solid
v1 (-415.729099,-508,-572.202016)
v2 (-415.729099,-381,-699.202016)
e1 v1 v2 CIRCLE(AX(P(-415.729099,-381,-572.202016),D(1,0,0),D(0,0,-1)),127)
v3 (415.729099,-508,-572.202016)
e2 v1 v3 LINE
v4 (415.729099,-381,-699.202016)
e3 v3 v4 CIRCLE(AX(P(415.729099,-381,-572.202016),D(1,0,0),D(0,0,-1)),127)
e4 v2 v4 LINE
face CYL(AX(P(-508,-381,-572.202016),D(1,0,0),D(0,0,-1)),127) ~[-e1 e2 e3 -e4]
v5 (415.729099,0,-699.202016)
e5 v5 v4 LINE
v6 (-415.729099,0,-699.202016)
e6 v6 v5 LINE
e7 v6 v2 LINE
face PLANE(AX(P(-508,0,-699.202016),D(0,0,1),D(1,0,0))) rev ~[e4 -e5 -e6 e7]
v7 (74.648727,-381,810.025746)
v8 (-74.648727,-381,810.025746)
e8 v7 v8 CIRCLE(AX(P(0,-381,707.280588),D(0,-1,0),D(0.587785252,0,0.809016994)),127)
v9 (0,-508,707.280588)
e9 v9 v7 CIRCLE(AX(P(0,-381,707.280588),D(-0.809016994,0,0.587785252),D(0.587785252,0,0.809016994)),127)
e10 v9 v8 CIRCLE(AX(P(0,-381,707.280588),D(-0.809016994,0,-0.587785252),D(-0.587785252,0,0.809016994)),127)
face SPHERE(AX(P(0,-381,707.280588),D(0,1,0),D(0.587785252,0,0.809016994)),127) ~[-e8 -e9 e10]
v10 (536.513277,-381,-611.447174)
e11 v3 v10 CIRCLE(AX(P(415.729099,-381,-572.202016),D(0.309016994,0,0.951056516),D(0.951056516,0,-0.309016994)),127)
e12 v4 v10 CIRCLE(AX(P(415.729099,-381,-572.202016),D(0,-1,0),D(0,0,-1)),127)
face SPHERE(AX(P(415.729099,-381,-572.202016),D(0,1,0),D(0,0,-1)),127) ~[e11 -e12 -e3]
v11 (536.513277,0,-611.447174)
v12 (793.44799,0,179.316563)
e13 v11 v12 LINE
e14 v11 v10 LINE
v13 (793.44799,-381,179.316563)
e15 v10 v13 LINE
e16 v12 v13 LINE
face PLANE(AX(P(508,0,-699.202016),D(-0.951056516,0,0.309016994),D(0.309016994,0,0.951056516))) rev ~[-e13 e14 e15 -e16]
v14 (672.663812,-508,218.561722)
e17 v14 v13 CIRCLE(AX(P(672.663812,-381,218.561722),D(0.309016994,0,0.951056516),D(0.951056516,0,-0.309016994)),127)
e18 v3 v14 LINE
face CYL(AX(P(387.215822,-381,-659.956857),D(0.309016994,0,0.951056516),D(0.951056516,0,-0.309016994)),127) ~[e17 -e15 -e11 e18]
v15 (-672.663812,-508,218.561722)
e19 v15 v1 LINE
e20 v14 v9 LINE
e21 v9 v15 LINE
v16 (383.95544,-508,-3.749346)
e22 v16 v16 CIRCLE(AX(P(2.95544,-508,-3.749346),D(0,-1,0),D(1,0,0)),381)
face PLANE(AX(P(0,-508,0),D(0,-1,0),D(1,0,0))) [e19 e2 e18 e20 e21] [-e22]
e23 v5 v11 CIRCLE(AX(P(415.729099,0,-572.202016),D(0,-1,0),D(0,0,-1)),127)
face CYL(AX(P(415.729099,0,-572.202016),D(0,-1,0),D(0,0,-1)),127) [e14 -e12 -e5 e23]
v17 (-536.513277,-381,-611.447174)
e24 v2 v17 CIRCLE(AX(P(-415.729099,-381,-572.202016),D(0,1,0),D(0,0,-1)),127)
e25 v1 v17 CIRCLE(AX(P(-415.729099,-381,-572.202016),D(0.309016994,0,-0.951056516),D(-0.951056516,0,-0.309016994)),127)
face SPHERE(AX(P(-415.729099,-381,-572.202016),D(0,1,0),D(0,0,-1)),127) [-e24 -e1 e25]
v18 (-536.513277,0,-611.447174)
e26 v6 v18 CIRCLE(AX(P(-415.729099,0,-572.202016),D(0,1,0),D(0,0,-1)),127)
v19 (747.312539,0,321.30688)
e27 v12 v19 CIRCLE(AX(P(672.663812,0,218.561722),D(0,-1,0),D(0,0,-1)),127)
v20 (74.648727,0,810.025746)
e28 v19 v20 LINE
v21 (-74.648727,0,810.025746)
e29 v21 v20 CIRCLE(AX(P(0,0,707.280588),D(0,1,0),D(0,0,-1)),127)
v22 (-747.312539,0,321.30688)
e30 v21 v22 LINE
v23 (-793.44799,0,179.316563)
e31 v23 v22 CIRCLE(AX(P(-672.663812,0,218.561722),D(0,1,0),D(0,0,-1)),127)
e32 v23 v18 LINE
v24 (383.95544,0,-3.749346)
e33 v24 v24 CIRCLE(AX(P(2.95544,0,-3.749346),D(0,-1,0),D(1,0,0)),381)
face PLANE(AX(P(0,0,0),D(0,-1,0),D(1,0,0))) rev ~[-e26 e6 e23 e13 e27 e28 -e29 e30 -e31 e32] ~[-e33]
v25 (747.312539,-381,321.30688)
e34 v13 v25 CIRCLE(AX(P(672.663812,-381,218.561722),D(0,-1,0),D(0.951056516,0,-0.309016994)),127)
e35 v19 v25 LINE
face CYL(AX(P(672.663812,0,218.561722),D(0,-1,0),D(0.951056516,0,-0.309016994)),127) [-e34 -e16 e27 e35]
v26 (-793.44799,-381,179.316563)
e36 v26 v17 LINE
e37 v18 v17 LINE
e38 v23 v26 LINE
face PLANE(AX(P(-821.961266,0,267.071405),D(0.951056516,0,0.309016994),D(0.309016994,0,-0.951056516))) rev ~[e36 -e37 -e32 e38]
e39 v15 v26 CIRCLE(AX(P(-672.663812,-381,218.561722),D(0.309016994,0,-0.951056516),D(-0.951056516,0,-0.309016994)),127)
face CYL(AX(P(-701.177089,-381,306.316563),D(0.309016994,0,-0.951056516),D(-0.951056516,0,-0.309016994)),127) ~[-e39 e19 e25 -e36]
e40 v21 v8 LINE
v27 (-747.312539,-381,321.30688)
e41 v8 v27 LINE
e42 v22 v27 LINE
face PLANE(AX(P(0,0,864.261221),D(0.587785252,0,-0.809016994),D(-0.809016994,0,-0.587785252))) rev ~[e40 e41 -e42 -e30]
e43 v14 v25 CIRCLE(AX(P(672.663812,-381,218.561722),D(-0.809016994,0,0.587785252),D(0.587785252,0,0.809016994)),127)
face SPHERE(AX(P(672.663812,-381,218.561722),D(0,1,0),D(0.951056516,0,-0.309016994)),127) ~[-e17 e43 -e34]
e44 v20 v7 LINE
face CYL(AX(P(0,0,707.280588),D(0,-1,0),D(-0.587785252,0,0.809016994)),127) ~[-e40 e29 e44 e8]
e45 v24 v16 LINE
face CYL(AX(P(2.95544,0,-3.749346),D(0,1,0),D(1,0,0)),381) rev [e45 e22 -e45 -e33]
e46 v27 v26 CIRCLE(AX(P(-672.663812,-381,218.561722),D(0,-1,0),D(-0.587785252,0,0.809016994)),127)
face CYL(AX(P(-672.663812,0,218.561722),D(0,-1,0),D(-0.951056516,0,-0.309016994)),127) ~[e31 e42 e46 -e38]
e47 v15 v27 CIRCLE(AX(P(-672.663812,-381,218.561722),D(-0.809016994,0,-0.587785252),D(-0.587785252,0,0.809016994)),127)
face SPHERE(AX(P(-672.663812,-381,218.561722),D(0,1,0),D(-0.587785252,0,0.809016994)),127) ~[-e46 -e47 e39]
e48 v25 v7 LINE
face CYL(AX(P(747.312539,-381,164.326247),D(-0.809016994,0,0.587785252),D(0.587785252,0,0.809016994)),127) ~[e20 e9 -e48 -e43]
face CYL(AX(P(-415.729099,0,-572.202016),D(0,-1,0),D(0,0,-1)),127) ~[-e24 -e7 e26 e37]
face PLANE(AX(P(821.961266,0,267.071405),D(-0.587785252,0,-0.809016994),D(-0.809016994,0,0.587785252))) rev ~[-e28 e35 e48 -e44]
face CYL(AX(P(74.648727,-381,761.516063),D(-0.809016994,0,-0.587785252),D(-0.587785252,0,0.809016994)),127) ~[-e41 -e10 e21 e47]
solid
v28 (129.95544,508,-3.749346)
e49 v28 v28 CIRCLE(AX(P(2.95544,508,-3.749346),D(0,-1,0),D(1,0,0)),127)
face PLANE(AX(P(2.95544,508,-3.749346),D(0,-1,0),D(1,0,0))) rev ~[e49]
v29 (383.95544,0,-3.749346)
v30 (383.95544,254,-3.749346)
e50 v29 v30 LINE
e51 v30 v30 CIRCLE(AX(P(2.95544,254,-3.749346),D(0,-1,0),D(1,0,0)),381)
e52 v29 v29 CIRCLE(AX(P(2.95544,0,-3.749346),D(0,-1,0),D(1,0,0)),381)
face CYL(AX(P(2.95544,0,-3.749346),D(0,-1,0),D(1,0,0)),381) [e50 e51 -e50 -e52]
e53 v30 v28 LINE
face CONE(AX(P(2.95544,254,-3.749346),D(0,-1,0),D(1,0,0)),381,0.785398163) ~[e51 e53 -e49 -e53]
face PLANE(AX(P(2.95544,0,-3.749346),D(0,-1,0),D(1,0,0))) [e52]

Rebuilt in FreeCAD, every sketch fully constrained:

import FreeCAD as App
import Part
import Sketcher
from FreeCAD import Vector
Q = App.Units.Quantity


def edges_at(feature, points):
    """Names of the edges that pass closest to the given points."""
    edges = feature.Shape.Edges
    near = lambda p: min(range(len(edges)), key=lambda i: edges[i].distToShape(Part.Vertex(*p))[0])
    return sorted({f"Edge{near(p) + 1}" for p in points})


def add_polygon(sketch, points):
    """Adds a closed chain of lines whose ends are joined by coincident constraints."""
    first, n = sketch.GeometryCount, len(points)
    for a, b in zip(points, points[1:] + points[:1]):
        sketch.addGeometry(Part.LineSegment(App.Vector(*a, 0), App.Vector(*b, 0)), False)
    for i in range(n):
        sketch.addConstraint(Sketcher.Constraint("Coincident", first + i, 2, first + (i + 1) % n, 1))

doc = App.newDocument("Part")
params = doc.addObject("Spreadsheet::Sheet", "Params")
for row, (alias, value) in enumerate([
    ("sketch1_diameter", "30 in"),
    ("sketch1_width", "40 in"),
    ("sketch1_length", "40 in"),
    ("pad1_length", "20 in"),
    ("fillet_radius", "5 in"),
    ("sketch2_diameter", "30 in"),
    ("pad2_length", "20 in"),
    ("chamfer_size", "10 in"),
], start=1):
    params.set(f"A{row}", alias)
    params.set(f"B{row}", "=" + value)
    params.setAlias(f"B{row}", alias)

body = doc.addObject("PartDesign::Body", "Body")
body.AllowCompound = True

sketch1 = body.newObject("Sketcher::SketchObject", "Sketch")
sketch1.AttachmentSupport = (doc.getObject("XZ_Plane"), [""])
sketch1.MapMode = "FlatFace"
add_polygon(sketch1, [(-508, -699.202016), (508, -699.202016), (821.961266, 267.071405), (0, 864.261221), (-821.961266, 267.071405)])
sketch1.addGeometry(Part.Circle(Vector(2.95544, -3.749346, 0), Vector(0, 0, 1), 381), False)
sketch1.addConstraint([
    Sketcher.Constraint("Horizontal", 0),
    Sketcher.Constraint("Symmetric", 1, 2, 3, 2, -2),
    Sketcher.Constraint("PointOnObject", 2, 2, -2),
    Sketcher.Constraint("Equal", 1, 2),
    Sketcher.Constraint("Equal", 3, 4),
    Sketcher.Constraint("Diameter", 5, Q("30 in")),
    Sketcher.Constraint("DistanceX", 0, 1, 0, 2, Q("40 in")),
    Sketcher.Constraint("Distance", 1, Q("40 in")),
    Sketcher.Constraint("Angle", 1, Q("72 deg")),
    Sketcher.Constraint("DistanceX", -1, 1, 5, 3, Q("2.95544 mm")),
    Sketcher.Constraint("DistanceY", -1, 1, 2, 2, Q("864.261221 mm")),
    Sketcher.Constraint("DistanceY", 0, 2, 5, 3, Q("695.452669 mm")),
])
sketch1.setExpression("Constraints[10]", "Params.sketch1_diameter")
sketch1.setExpression("Constraints[11]", "Params.sketch1_width")
sketch1.setExpression("Constraints[12]", "Params.sketch1_length")
pad1 = body.newObject("PartDesign::Pad", "Pad")
pad1.Profile = sketch1
pad1.setExpression("Length", "Params.pad1_length")
doc.recompute()

fillet = body.newObject("PartDesign::Fillet", "Fillet")
fillet.Base = (pad1, edges_at(pad1, [
    (508, -254, -699.202),
    (821.961, -254, 267.071),
    (0, -254, 864.261),
    (-821.961, -254, 267.071),
    (-508, -254, -699.202),
    (0, -508, -699.202),
    (664.981, -508, -216.065),
    (410.981, -508, 565.666),
    (-410.981, -508, 565.666),
    (-664.981, -508, -216.065),
]))
fillet.setExpression("Radius", "Params.fillet_radius")

sketch2 = body.newObject("Sketcher::SketchObject", "Sketch001")
sketch2.AttachmentSupport = (doc.getObject("XZ_Plane"), [""])
sketch2.MapMode = "FlatFace"
sketch2.addGeometry(Part.Circle(Vector(2.95544, -3.749346, 0), Vector(0, 0, 1), 381), False)
sketch2.addConstraint([
    Sketcher.Constraint("Diameter", 0, Q("30 in")),
    Sketcher.Constraint("DistanceX", -1, 1, 0, 3, Q("2.95544 mm")),
    Sketcher.Constraint("DistanceY", 0, 3, -1, 1, Q("3.749346 mm")),
])
sketch2.setExpression("Constraints[0]", "Params.sketch2_diameter")
pad2 = body.newObject("PartDesign::Pad", "Pad001")
pad2.Profile = sketch2
pad2.setExpression("Length", "Params.pad2_length")
pad2.Reversed = True
doc.recompute()

chamfer = body.newObject("PartDesign::Chamfer", "Chamfer")
chamfer.Base = (pad2, edges_at(pad2, [(-378.045, 508, -3.749)]))
chamfer.setExpression("Size", "Params.chamfer_size")

doc.recompute()
